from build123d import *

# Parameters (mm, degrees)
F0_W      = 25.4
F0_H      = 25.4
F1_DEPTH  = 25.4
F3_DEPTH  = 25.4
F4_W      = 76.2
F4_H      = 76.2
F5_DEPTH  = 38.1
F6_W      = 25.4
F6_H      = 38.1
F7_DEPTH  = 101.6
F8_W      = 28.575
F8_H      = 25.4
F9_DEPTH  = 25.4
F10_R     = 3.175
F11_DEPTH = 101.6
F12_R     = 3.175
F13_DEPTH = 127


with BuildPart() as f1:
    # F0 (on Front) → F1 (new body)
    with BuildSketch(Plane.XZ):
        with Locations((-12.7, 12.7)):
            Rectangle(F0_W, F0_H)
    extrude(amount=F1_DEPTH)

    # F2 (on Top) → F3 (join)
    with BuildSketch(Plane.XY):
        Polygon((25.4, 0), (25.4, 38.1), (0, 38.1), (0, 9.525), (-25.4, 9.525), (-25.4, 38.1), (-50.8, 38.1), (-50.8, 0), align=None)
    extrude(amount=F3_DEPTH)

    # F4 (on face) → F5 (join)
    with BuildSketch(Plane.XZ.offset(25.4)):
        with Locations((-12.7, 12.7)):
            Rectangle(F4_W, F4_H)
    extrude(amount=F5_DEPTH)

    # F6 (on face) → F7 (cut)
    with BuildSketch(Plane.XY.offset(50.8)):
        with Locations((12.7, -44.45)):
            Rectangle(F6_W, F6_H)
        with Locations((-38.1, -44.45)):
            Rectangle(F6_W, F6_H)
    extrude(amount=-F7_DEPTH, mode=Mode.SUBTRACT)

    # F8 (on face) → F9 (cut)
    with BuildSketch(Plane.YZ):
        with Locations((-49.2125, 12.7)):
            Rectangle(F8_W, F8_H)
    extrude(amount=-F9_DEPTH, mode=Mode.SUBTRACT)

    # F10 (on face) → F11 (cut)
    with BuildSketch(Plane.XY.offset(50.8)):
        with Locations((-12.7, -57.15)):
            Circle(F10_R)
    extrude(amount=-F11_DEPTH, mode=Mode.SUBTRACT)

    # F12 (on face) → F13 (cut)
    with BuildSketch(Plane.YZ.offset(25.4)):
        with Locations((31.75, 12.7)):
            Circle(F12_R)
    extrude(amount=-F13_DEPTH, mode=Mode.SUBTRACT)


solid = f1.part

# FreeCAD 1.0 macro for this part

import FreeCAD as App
import Part
import Sketcher

V = App.Vector
Q = App.Units.Quantity

doc = App.newDocument("Part")
body = doc.addObject("PartDesign::Body", "Body")

sketch1 = body.newObject("Sketcher::SketchObject", "Sketch")
sketch1.AttachmentSupport = (doc.getObject("XZ_Plane"), [""])
sketch1.MapMode = "FlatFace"
sketch1.addGeometry([
    Part.LineSegment(V(-25.4, 25.4, 0), V(-25.4, 0, 0)),
    Part.LineSegment(V(-25.4, 0, 0), V(0, 0, 0)),
    Part.LineSegment(V(0, 0, 0), V(0, 25.4, 0)),
    Part.LineSegment(V(0, 25.4, 0), V(-25.4, 25.4, 0)),
], False)
sketch1.addConstraint([
    Sketcher.Constraint("Coincident", 0, 2, 1, 1),
    Sketcher.Constraint("Coincident", 1, 2, 2, 1),
    Sketcher.Constraint("Coincident", 2, 2, 3, 1),
    Sketcher.Constraint("Coincident", 3, 2, 0, 1),
    Sketcher.Constraint("Vertical", 0),
    Sketcher.Constraint("Horizontal", 1),
    Sketcher.Constraint("Vertical", 2),
    Sketcher.Constraint("Horizontal", 3),
    Sketcher.Constraint("Coincident", 1, 2, -1, 1),
    Sketcher.Constraint("Equal", 3, 0),
    Sketcher.Constraint("DistanceX", 1, 1, 1, 2, Q("1 in")),
])
pad1 = body.newObject("PartDesign::Pad", "Pad")
pad1.Profile = sketch1
pad1.Length = Q("1 in")

sketch2 = body.newObject("Sketcher::SketchObject", "Sketch001")
sketch2.AttachmentSupport = (doc.getObject("XY_Plane"), [""])
sketch2.MapMode = "FlatFace"
sketch2.addGeometry([
    Part.LineSegment(V(25.4, 0, 0), V(25.4, 38.1, 0)),
    Part.LineSegment(V(25.4, 38.1, 0), V(0, 38.1, 0)),
    Part.LineSegment(V(0, 38.1, 0), V(0, 9.525, 0)),
    Part.LineSegment(V(0, 9.525, 0), V(-25.4, 9.525, 0)),
    Part.LineSegment(V(-25.4, 9.525, 0), V(-25.4, 38.1, 0)),
    Part.LineSegment(V(-25.4, 38.1, 0), V(-50.8, 38.1, 0)),
    Part.LineSegment(V(-50.8, 38.1, 0), V(-50.8, 0, 0)),
    Part.LineSegment(V(-50.8, 0, 0), V(25.4, 0, 0)),
], False)
sketch2.addConstraint([
    Sketcher.Constraint("Coincident", 0, 2, 1, 1),
    Sketcher.Constraint("Coincident", 1, 2, 2, 1),
    Sketcher.Constraint("Coincident", 2, 2, 3, 1),
    Sketcher.Constraint("Coincident", 3, 2, 4, 1),
    Sketcher.Constraint("Coincident", 4, 2, 5, 1),
    Sketcher.Constraint("Coincident", 5, 2, 6, 1),
    Sketcher.Constraint("Coincident", 6, 2, 7, 1),
    Sketcher.Constraint("Coincident", 7, 2, 0, 1),
    Sketcher.Constraint("Vertical", 0),
    Sketcher.Constraint("Horizontal", 1),
    Sketcher.Constraint("Vertical", 2),
    Sketcher.Constraint("Horizontal", 3),
    Sketcher.Constraint("Vertical", 4),
    Sketcher.Constraint("Horizontal", 5),
    Sketcher.Constraint("Vertical", 6),
    Sketcher.Constraint("Horizontal", 7),
    Sketcher.Constraint("Symmetric", 0, 2, 4, 2, -2),
    Sketcher.Constraint("PointOnObject", 1, 2, -2),
    Sketcher.Constraint("PointOnObject", 6, 2, -1),
    Sketcher.Constraint("Equal", 3, 5),
    Sketcher.Constraint("DistanceX", 1, 2, 1, 1, Q("1 in")),
    Sketcher.Constraint("DistanceY", 0, 1, 0, 2, Q("1.5 in")),
    Sketcher.Constraint("DistanceY", 2, 2, 2, 1, Q("1.125 in")),
])
pad2 = body.newObject("PartDesign::Pad", "Pad001")
pad2.Profile = sketch2
pad2.Length = Q("1 in")

sketch3 = body.newObject("Sketcher::SketchObject", "Sketch002")
sketch3.AttachmentSupport = (doc.getObject("XZ_Plane"), [""])
sketch3.MapMode = "FlatFace"
sketch3.AttachmentOffset = App.Placement(V(0, 0, 1 * 25.4), App.Rotation())
sketch3.addGeometry([
    Part.LineSegment(V(-50.8, 50.8, 0), V(-50.8, -25.4, 0)),
    Part.LineSegment(V(-50.8, -25.4, 0), V(25.4, -25.4, 0)),
    Part.LineSegment(V(25.4, -25.4, 0), V(25.4, 50.8, 0)),
    Part.LineSegment(V(25.4, 50.8, 0), V(-50.8, 50.8, 0)),
], False)
sketch3.addConstraint([
    Sketcher.Constraint("Coincident", 0, 2, 1, 1),
    Sketcher.Constraint("Coincident", 1, 2, 2, 1),
    Sketcher.Constraint("Coincident", 2, 2, 3, 1),
    Sketcher.Constraint("Coincident", 3, 2, 0, 1),
    Sketcher.Constraint("Vertical", 0),
    Sketcher.Constraint("Horizontal", 1),
    Sketcher.Constraint("Vertical", 2),
    Sketcher.Constraint("Horizontal", 3),
    Sketcher.Constraint("Equal", 3, 0),
    Sketcher.Constraint("DistanceX", 1, 1, 1, 2, Q("3 in")),
    Sketcher.Constraint("DistanceX", 0, 2, -1, 1, Q("2 in")),
    Sketcher.Constraint("DistanceY", 0, 2, -1, 1, Q("1 in")),
])
pad3 = body.newObject("PartDesign::Pad", "Pad002")
pad3.Profile = sketch3
pad3.Length = Q("1.5 in")

sketch4 = body.newObject("Sketcher::SketchObject", "Sketch003")
sketch4.AttachmentSupport = (doc.getObject("XY_Plane"), [""])
sketch4.MapMode = "FlatFace"
sketch4.AttachmentOffset = App.Placement(V(0, 0, 2 * 25.4), App.Rotation())
sketch4.addGeometry([
    Part.LineSegment(V(0, -25.4, 0), V(0, -63.5, 0)),
    Part.LineSegment(V(0, -63.5, 0), V(25.4, -63.5, 0)),
    Part.LineSegment(V(25.4, -63.5, 0), V(25.4, -25.4, 0)),
    Part.LineSegment(V(25.4, -25.4, 0), V(0, -25.4, 0)),
    Part.LineSegment(V(-50.8, -25.4, 0), V(-50.8, -63.5, 0)),
    Part.LineSegment(V(-50.8, -63.5, 0), V(-25.4, -63.5, 0)),
    Part.LineSegment(V(-25.4, -63.5, 0), V(-25.4, -25.4, 0)),
    Part.LineSegment(V(-25.4, -25.4, 0), V(-50.8, -25.4, 0)),
], False)
sketch4.addConstraint([
    Sketcher.Constraint("Coincident", 0, 2, 1, 1),
    Sketcher.Constraint("Coincident", 1, 2, 2, 1),
    Sketcher.Constraint("Coincident", 2, 2, 3, 1),
    Sketcher.Constraint("Coincident", 3, 2, 0, 1),
    Sketcher.Constraint("Coincident", 4, 2, 5, 1),
    Sketcher.Constraint("Coincident", 5, 2, 6, 1),
    Sketcher.Constraint("Coincident", 6, 2, 7, 1),
    Sketcher.Constraint("Coincident", 7, 2, 4, 1),
    Sketcher.Constraint("Vertical", 0),
    Sketcher.Constraint("Horizontal", 1),
    Sketcher.Constraint("Vertical", 2),
    Sketcher.Constraint("Horizontal", 3),
    Sketcher.Constraint("Vertical", 4),
    Sketcher.Constraint("Horizontal", 5),
    Sketcher.Constraint("Vertical", 6),
    Sketcher.Constraint("Horizontal", 7),
    Sketcher.Constraint("Symmetric", 1, 2, 5, 2, -2),
    Sketcher.Constraint("PointOnObject", 0, 2, -2),
    Sketcher.Constraint("Horizontal", 3, 2, 6, 2),
    Sketcher.Constraint("Equal", 3, 5),
    Sketcher.Constraint("DistanceX", 1, 1, 1, 2, Q("1 in")),
    Sketcher.Constraint("DistanceY", 0, 2, 0, 1, Q("1.5 in")),
    Sketcher.Constraint("DistanceY", 2, 2, -1, 1, Q("1 in")),
])
pocket1 = body.newObject("PartDesign::Pocket", "Pocket")
pocket1.Profile = sketch4
pocket1.Length = Q("4 in")

sketch5 = body.newObject("Sketcher::SketchObject", "Sketch004")
sketch5.AttachmentSupport = (doc.getObject("YZ_Plane"), [""])
sketch5.MapMode = "FlatFace"
sketch5.addGeometry([
    Part.LineSegment(V(-63.5, 25.4, 0), V(-63.5, 0, 0)),
    Part.LineSegment(V(-63.5, 0, 0), V(-34.925, 0, 0)),
    Part.LineSegment(V(-34.925, 0, 0), V(-34.925, 25.4, 0)),
    Part.LineSegment(V(-34.925, 25.4, 0), V(-63.5, 25.4, 0)),
], False)
sketch5.addConstraint([
    Sketcher.Constraint("Coincident", 0, 2, 1, 1),
    Sketcher.Constraint("Coincident", 1, 2, 2, 1),
    Sketcher.Constraint("Coincident", 2, 2, 3, 1),
    Sketcher.Constraint("Coincident", 3, 2, 0, 1),
    Sketcher.Constraint("Vertical", 0),
    Sketcher.Constraint("Horizontal", 1),
    Sketcher.Constraint("Vertical", 2),
    Sketcher.Constraint("Horizontal", 3),
    Sketcher.Constraint("PointOnObject", 0, 2, -1),
    Sketcher.Constraint("DistanceY", 0, 2, 0, 1, Q("1 in")),
    Sketcher.Constraint("DistanceX", 0, 2, -1, 1, Q("2.5 in")),
    Sketcher.Constraint("DistanceX", 1, 1, 1, 2, Q("1.125 in")),
])
pocket2 = body.newObject("PartDesign::Pocket", "Pocket001")
pocket2.Profile = sketch5
pocket2.Length = Q("1 in")

sketch6 = body.newObject("Sketcher::SketchObject", "Sketch005")
sketch6.AttachmentSupport = (doc.getObject("XY_Plane"), [""])
sketch6.MapMode = "FlatFace"
sketch6.AttachmentOffset = App.Placement(V(0, 0, 2 * 25.4), App.Rotation())
sketch6.addGeometry(Part.Circle(V(-12.7, -57.15, 0), V(0, 0, 1), 3.175), False)
sketch6.addConstraint([
    Sketcher.Constraint("Diameter", 0, Q("0.25 in")),
    Sketcher.Constraint("DistanceX", 0, 3, -1, 1, Q("0.5 in")),
    Sketcher.Constraint("DistanceY", 0, 3, -1, 1, Q("2.25 in")),
])
pocket3 = body.newObject("PartDesign::Pocket", "Pocket002")
pocket3.Profile = sketch6
pocket3.Length = Q("4 in")

sketch7 = body.newObject("Sketcher::SketchObject", "Sketch006")
sketch7.AttachmentSupport = (doc.getObject("YZ_Plane"), [""])
sketch7.MapMode = "FlatFace"
sketch7.AttachmentOffset = App.Placement(V(0, 0, 1 * 25.4), App.Rotation())
sketch7.addGeometry(Part.Circle(V(31.75, 12.7, 0), V(0, 0, 1), 3.175), False)
sketch7.addConstraint([
    Sketcher.Constraint("Diameter", 0, Q("0.25 in")),
    Sketcher.Constraint("DistanceY", -1, 1, 0, 3, Q("0.5 in")),
    Sketcher.Constraint("DistanceX", -1, 1, 0, 3, Q("1.25 in")),
])
pocket4 = body.newObject("PartDesign::Pocket", "Pocket003")
pocket4.Profile = sketch7
pocket4.Length = Q("5 in")

doc.recompute()
